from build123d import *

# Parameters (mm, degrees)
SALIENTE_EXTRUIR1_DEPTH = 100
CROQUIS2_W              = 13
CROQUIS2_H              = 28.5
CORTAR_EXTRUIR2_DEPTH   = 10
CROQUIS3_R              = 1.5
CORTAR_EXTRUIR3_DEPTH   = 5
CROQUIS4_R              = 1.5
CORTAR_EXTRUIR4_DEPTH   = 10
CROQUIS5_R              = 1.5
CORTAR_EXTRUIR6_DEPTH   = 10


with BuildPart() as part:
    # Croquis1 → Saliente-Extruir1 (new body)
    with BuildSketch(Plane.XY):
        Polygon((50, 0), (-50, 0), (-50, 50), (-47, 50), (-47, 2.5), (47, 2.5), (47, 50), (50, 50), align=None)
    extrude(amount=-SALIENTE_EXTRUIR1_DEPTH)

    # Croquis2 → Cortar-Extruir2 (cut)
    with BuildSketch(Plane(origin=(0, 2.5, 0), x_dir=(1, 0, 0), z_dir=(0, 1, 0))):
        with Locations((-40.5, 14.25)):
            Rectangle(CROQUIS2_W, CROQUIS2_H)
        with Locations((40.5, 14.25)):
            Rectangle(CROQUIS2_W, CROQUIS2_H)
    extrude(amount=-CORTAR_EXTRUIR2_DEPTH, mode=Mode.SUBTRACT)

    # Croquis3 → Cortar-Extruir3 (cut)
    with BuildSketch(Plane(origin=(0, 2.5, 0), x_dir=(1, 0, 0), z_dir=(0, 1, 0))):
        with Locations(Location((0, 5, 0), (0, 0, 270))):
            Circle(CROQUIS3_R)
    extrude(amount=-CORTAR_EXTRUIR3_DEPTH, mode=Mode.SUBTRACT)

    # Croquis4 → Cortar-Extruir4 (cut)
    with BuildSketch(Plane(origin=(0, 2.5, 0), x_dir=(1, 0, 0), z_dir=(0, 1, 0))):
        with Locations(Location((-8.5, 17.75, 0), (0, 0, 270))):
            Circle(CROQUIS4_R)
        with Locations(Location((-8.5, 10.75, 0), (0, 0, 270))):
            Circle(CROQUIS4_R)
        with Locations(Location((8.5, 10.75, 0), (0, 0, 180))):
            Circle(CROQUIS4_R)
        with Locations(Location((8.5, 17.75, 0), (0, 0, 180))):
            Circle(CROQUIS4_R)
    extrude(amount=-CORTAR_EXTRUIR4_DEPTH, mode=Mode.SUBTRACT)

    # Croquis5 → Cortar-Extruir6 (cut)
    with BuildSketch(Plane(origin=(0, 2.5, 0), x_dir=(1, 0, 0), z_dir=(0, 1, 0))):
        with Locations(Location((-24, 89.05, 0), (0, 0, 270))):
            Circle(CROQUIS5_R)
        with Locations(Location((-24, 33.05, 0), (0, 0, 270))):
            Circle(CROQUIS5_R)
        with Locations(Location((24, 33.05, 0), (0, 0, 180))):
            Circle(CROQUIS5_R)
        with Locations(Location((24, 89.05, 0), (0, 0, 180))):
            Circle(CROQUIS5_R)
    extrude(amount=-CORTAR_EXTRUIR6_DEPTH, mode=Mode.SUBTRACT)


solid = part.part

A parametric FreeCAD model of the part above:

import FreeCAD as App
import Part
import Sketcher
Q = App.Units.Quantity

doc = App.newDocument("Part")
params = doc.addObject("Spreadsheet::Sheet", "Params")
for row, (alias, value) in enumerate([
    ("sketch1_width", "100 mm"),
    ("sketch1_width2", "3 mm"),
    ("sketch1_height", "50 mm"),
    ("sketch1_height2", "47.5 mm"),
    ("pad1_length", "100 mm"),
    ("sketch2_width", "13 mm"),
    ("sketch2_height", "28.5 mm"),
    ("pocket1_length", "10 mm"),
    ("sketch3_diameter", "3 mm"),
    ("pocket2_length", "5 mm"),
    ("sketch4_diameter", "3 mm"),
    ("pocket3_length", "10 mm"),
    ("sketch5_diameter", "3 mm"),
    ("pocket4_length", "10 mm"),
], start=1):
    params.set(f"A{row}", alias)
    params.set(f"B{row}", "=" + value)
    params.setAlias(f"B{row}", alias)

body = doc.addObject("PartDesign::Body", "Body")

sketch1 = body.newObject("Sketcher::SketchObject", "Sketch")
sketch1.AttachmentSupport = (doc.getObject("XY_Plane"), [""])
sketch1.MapMode = "FlatFace"
sketch1.addGeometry([
    Part.LineSegment(App.Vector(-50, 0, 0), App.Vector(50, 0, 0)),
    Part.LineSegment(App.Vector(50, 0, 0), App.Vector(50, 50, 0)),
    Part.LineSegment(App.Vector(50, 50, 0), App.Vector(47, 50, 0)),
    Part.LineSegment(App.Vector(47, 50, 0), App.Vector(47, 2.5, 0)),
    Part.LineSegment(App.Vector(47, 2.5, 0), App.Vector(-47, 2.5, 0)),
    Part.LineSegment(App.Vector(-47, 2.5, 0), App.Vector(-47, 50, 0)),
    Part.LineSegment(App.Vector(-47, 50, 0), App.Vector(-50, 50, 0)),
    Part.LineSegment(App.Vector(-50, 50, 0), App.Vector(-50, 0, 0)),
], False)
sketch1.addConstraint([
    Sketcher.Constraint("Coincident", 0, 2, 1, 1),
    Sketcher.Constraint("Coincident", 1, 2, 2, 1),
    Sketcher.Constraint("Coincident", 2, 2, 3, 1),
    Sketcher.Constraint("Coincident", 3, 2, 4, 1),
    Sketcher.Constraint("Coincident", 4, 2, 5, 1),
    Sketcher.Constraint("Coincident", 5, 2, 6, 1),
    Sketcher.Constraint("Coincident", 6, 2, 7, 1),
    Sketcher.Constraint("Coincident", 7, 2, 0, 1),
    Sketcher.Constraint("Horizontal", 0),
    Sketcher.Constraint("Vertical", 1),
    Sketcher.Constraint("Horizontal", 2),
    Sketcher.Constraint("Vertical", 3),
    Sketcher.Constraint("Horizontal", 4),
    Sketcher.Constraint("Vertical", 5),
    Sketcher.Constraint("Horizontal", 6),
    Sketcher.Constraint("Vertical", 7),
    Sketcher.Constraint("Symmetric", 0, 2, 7, 2, -1, 1),
    Sketcher.Constraint("Symmetric", 2, 2, 5, 2, -2),
    Sketcher.Constraint("DistanceX", 0, 1, 0, 2, Q("100 mm")),
    Sketcher.Constraint("DistanceX", 2, 2, 2, 1, Q("3 mm")),
    Sketcher.Constraint("DistanceY", 1, 1, 1, 2, Q("50 mm")),
    Sketcher.Constraint("DistanceY", 3, 2, 3, 1, Q("47.5 mm")),
])
sketch1.setExpression("Constraints[18]", "Params.sketch1_width")
sketch1.setExpression("Constraints[19]", "Params.sketch1_width2")
sketch1.setExpression("Constraints[20]", "Params.sketch1_height")
sketch1.setExpression("Constraints[21]", "Params.sketch1_height2")
pad1 = body.newObject("PartDesign::Pad", "Pad")
pad1.Profile = sketch1
pad1.setExpression("Length", "Params.pad1_length")
pad1.Reversed = True

sketch2 = body.newObject("Sketcher::SketchObject", "Sketch001")
sketch2.AttachmentSupport = (doc.getObject("XZ_Plane"), [""])
sketch2.MapMode = "FlatFace"
sketch2.AttachmentOffset = App.Placement(App.Vector(0, 0, -2.5), App.Rotation())
sketch2.addGeometry([
    Part.LineSegment(App.Vector(-47, -28, 0), App.Vector(-47, 0, 0)),
    Part.LineSegment(App.Vector(-47, 0, 0), App.Vector(-34, 0, 0)),
    Part.LineSegment(App.Vector(-34, 0, 0), App.Vector(-34, -28, 0)),
    Part.LineSegment(App.Vector(-34, -28, 0), App.Vector(-47, -28, 0)),
    Part.LineSegment(App.Vector(34, -28, 0), App.Vector(34, 0, 0)),
    Part.LineSegment(App.Vector(34, 0, 0), App.Vector(47, 0, 0)),
    Part.LineSegment(App.Vector(47, 0, 0), App.Vector(47, -28, 0)),
    Part.LineSegment(App.Vector(47, -28, 0), App.Vector(34, -28, 0)),
], False)
sketch2.addConstraint([
    Sketcher.Constraint("Coincident", 0, 2, 1, 1),
    Sketcher.Constraint("Coincident", 1, 2, 2, 1),
    Sketcher.Constraint("Coincident", 2, 2, 3, 1),
    Sketcher.Constraint("Coincident", 3, 2, 0, 1),
    Sketcher.Constraint("Coincident", 4, 2, 5, 1),
    Sketcher.Constraint("Coincident", 5, 2, 6, 1),
    Sketcher.Constraint("Coincident", 6, 2, 7, 1),
    Sketcher.Constraint("Coincident", 7, 2, 4, 1),
    Sketcher.Constraint("Vertical", 0),
    Sketcher.Constraint("Horizontal", 1),
    Sketcher.Constraint("Vertical", 2),
    Sketcher.Constraint("Horizontal", 3),
    Sketcher.Constraint("Vertical", 4),
    Sketcher.Constraint("Horizontal", 5),
    Sketcher.Constraint("Vertical", 6),
    Sketcher.Constraint("Horizontal", 7),
    Sketcher.Constraint("Symmetric", 1, 2, 4, 2, -1, 1),
    Sketcher.Constraint("Symmetric", 0, 2, 5, 2, -2),
    Sketcher.Constraint("Horizontal", 3, 2, 6, 2),
    Sketcher.Constraint("DistanceX", 1, 1, 1, 2, Q("13 mm")),
    Sketcher.Constraint("DistanceY", 0, 1, 0, 2, Q("28.5 mm")),
    Sketcher.Constraint("DistanceX", 0, 2, -1, 1, Q("47 mm")),
])
sketch2.setExpression("Constraints[19]", "Params.sketch2_width")
sketch2.setExpression("Constraints[20]", "Params.sketch2_height")
pocket1 = body.newObject("PartDesign::Pocket", "Pocket")
pocket1.Profile = sketch2
pocket1.setExpression("Length", "Params.pocket1_length")
pocket1.Reversed = True

sketch3 = body.newObject("Sketcher::SketchObject", "Sketch002")
sketch3.AttachmentSupport = (doc.getObject("XZ_Plane"), [""])
sketch3.MapMode = "FlatFace"
sketch3.AttachmentOffset = App.Placement(App.Vector(0, 0, -2.5), App.Rotation())
sketch3.addGeometry(Part.Circle(App.Vector(0, -5, 0), App.Vector(0, 0, 1), 1.5), False)
sketch3.addConstraint([
    Sketcher.Constraint("PointOnObject", 0, 3, -2),
    Sketcher.Constraint("Diameter", 0, Q("3 mm")),
    Sketcher.Constraint("DistanceY", 0, 3, -1, 1, Q("5 mm")),
])
sketch3.setExpression("Constraints[1]", "Params.sketch3_diameter")
pocket2 = body.newObject("PartDesign::Pocket", "Pocket001")
pocket2.Profile = sketch3
pocket2.setExpression("Length", "Params.pocket2_length")
pocket2.Reversed = True

sketch4 = body.newObject("Sketcher::SketchObject", "Sketch003")
sketch4.AttachmentSupport = (doc.getObject("XZ_Plane"), [""])
sketch4.MapMode = "FlatFace"
sketch4.AttachmentOffset = App.Placement(App.Vector(0, 0, -2.5), App.Rotation())
sketch4.addGeometry([
    Part.Circle(App.Vector(-8.5, -17.8, 0), App.Vector(0, 0, 1), 1.5),
    Part.Circle(App.Vector(-8.5, -10.8, 0), App.Vector(0, 0, 1), 1.5),
    Part.Circle(App.Vector(8.5, -10.8, 0), App.Vector(0, 0, 1), 1.5),
    Part.Circle(App.Vector(8.5, -17.8, 0), App.Vector(0, 0, 1), 1.5),
], False)
sketch4.addConstraint([
    Sketcher.Constraint("Equal", 0, 1),
    Sketcher.Constraint("Equal", 1, 2),
    Sketcher.Constraint("Equal", 2, 3),
    Sketcher.Constraint("Symmetric", 1, 3, 2, 3, -2),
    Sketcher.Constraint("Symmetric", 0, 3, 3, 3, -2),
    Sketcher.Constraint("Vertical", 0, 3, 1, 3),
    Sketcher.Constraint("Diameter", 0, Q("3 mm")),
    Sketcher.Constraint("DistanceY", 0, 3, 1, 3, Q("7 mm")),
    Sketcher.Constraint("DistanceX", 1, 3, 2, 3, Q("17 mm")),
    Sketcher.Constraint("DistanceY", 0, 3, -1, 1, Q("17.75 mm")),
])
sketch4.setExpression("Constraints[6]", "Params.sketch4_diameter")
pocket3 = body.newObject("PartDesign::Pocket", "Pocket002")
pocket3.Profile = sketch4
pocket3.setExpression("Length", "Params.pocket3_length")
pocket3.Reversed = True

sketch5 = body.newObject("Sketcher::SketchObject", "Sketch004")
sketch5.AttachmentSupport = (doc.getObject("XZ_Plane"), [""])
sketch5.MapMode = "FlatFace"
sketch5.AttachmentOffset = App.Placement(App.Vector(0, 0, -2.5), App.Rotation())
sketch5.addGeometry([
    Part.Circle(App.Vector(-24, -89, 0), App.Vector(0, 0, 1), 1.5),
    Part.Circle(App.Vector(-24, -33, 0), App.Vector(0, 0, 1), 1.5),
    Part.Circle(App.Vector(24, -33, 0), App.Vector(0, 0, 1), 1.5),
    Part.Circle(App.Vector(24, -89, 0), App.Vector(0, 0, 1), 1.5),
], False)
sketch5.addConstraint([
    Sketcher.Constraint("Equal", 0, 1),
    Sketcher.Constraint("Equal", 1, 2),
    Sketcher.Constraint("Equal", 2, 3),
    Sketcher.Constraint("Symmetric", 1, 3, 2, 3, -2),
    Sketcher.Constraint("Symmetric", 0, 3, 3, 3, -2),
    Sketcher.Constraint("Vertical", 0, 3, 1, 3),
    Sketcher.Constraint("Diameter", 0, Q("3 mm")),
    Sketcher.Constraint("DistanceX", 0, 3, -1, 1, Q("24 mm")),
    Sketcher.Constraint("DistanceY", 0, 3, 1, 3, Q("56 mm")),
    Sketcher.Constraint("DistanceY", 0, 3, -1, 1, Q("89.05 mm")),
])
sketch5.setExpression("Constraints[6]", "Params.sketch5_diameter")
pocket4 = body.newObject("PartDesign::Pocket", "Pocket003")
pocket4.Profile = sketch5
pocket4.setExpression("Length", "Params.pocket4_length")
pocket4.Reversed = True

doc.recompute()
